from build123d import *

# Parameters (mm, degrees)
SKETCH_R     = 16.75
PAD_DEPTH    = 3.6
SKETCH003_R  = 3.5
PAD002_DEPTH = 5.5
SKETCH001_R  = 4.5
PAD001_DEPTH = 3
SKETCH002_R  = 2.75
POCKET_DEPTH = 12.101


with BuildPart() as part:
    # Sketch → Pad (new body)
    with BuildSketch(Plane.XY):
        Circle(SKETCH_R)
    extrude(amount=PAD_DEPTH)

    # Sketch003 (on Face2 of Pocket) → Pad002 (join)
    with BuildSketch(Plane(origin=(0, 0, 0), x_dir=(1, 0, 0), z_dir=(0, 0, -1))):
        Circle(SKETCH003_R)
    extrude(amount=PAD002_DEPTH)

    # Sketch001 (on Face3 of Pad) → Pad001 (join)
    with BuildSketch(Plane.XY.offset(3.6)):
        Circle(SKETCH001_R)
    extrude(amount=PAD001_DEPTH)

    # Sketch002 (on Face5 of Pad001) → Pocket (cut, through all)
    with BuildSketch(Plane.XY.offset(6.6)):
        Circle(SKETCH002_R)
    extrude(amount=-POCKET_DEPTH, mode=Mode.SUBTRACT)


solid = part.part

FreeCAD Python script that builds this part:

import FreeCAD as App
import Part
import Sketcher

doc = App.newDocument("Part")
params = doc.addObject("Spreadsheet::Sheet", "Params")
for row, (alias, value) in enumerate([
    ("sketch1_diameter", "33.5 mm"),
    ("pad1_length", "3.6 mm"),
    ("sketch2_diameter", "7 mm"),
    ("pad2_length", "5.5 mm"),
    ("sketch3_diameter", "9 mm"),
    ("pad3_length", "3 mm"),
    ("sketch4_diameter", "5.5 mm"),
], start=1):
    params.set(f"A{row}", alias)
    params.set(f"B{row}", "=" + value)
    params.setAlias(f"B{row}", alias)

body = doc.addObject("PartDesign::Body", "Body")

sketch1 = body.newObject("Sketcher::SketchObject", "Sketch")
sketch1.AttachmentSupport = (doc.getObject("XY_Plane"), [""])
sketch1.MapMode = "FlatFace"
sketch1.addGeometry(Part.Circle(App.Vector(0, 0, 0), App.Vector(0, 0, 1), 17), False)
sketch1.addConstraint([
    Sketcher.Constraint("Coincident", 0, 3, -1, 1),
    Sketcher.Constraint("Diameter", 0, 33.5),
])
sketch1.setExpression("Constraints[1]", "Params.sketch1_diameter")
pad1 = body.newObject("PartDesign::Pad", "Pad")
pad1.Profile = sketch1
pad1.setExpression("Length", "Params.pad1_length")

sketch2 = body.newObject("Sketcher::SketchObject", "Sketch001")
sketch2.AttachmentSupport = (doc.getObject("XY_Plane"), [""])
sketch2.MapMode = "FlatFace"
sketch2.addGeometry(Part.Circle(App.Vector(0, 0, 0), App.Vector(0, 0, 1), 3.5), False)
sketch2.addConstraint([
    Sketcher.Constraint("Coincident", 0, 3, -1, 1),
    Sketcher.Constraint("Diameter", 0, 7.0),
])
sketch2.setExpression("Constraints[1]", "Params.sketch2_diameter")
pad2 = body.newObject("PartDesign::Pad", "Pad001")
pad2.Profile = sketch2
pad2.setExpression("Length", "Params.pad2_length")
pad2.Reversed = True

sketch3 = body.newObject("Sketcher::SketchObject", "Sketch002")
sketch3.AttachmentSupport = (doc.getObject("XY_Plane"), [""])
sketch3.MapMode = "FlatFace"
sketch3.AttachmentOffset = App.Placement(App.Vector(0, 0, 3.6), App.Rotation())
sketch3.addGeometry(Part.Circle(App.Vector(0, 0, 0), App.Vector(0, 0, 1), 4.5), False)
sketch3.addConstraint([
    Sketcher.Constraint("Coincident", 0, 3, -1, 1),
    Sketcher.Constraint("Diameter", 0, 9.0),
])
sketch3.setExpression("Constraints[1]", "Params.sketch3_diameter")
pad3 = body.newObject("PartDesign::Pad", "Pad002")
pad3.Profile = sketch3
pad3.setExpression("Length", "Params.pad3_length")

sketch4 = body.newObject("Sketcher::SketchObject", "Sketch003")
sketch4.AttachmentSupport = (doc.getObject("XY_Plane"), [""])
sketch4.MapMode = "FlatFace"
sketch4.AttachmentOffset = App.Placement(App.Vector(0, 0, 6.6), App.Rotation())
sketch4.addGeometry(Part.Circle(App.Vector(0, 0, 0), App.Vector(0, 0, 1), 2.8), False)
sketch4.addConstraint([
    Sketcher.Constraint("Coincident", 0, 3, -1, 1),
    Sketcher.Constraint("Diameter", 0, 5.5),
])
sketch4.setExpression("Constraints[1]", "Params.sketch4_diameter")
pocket1 = body.newObject("PartDesign::Pocket", "Pocket")
pocket1.Profile = sketch4
pocket1.Type = "ThroughAll"

doc.recompute()
